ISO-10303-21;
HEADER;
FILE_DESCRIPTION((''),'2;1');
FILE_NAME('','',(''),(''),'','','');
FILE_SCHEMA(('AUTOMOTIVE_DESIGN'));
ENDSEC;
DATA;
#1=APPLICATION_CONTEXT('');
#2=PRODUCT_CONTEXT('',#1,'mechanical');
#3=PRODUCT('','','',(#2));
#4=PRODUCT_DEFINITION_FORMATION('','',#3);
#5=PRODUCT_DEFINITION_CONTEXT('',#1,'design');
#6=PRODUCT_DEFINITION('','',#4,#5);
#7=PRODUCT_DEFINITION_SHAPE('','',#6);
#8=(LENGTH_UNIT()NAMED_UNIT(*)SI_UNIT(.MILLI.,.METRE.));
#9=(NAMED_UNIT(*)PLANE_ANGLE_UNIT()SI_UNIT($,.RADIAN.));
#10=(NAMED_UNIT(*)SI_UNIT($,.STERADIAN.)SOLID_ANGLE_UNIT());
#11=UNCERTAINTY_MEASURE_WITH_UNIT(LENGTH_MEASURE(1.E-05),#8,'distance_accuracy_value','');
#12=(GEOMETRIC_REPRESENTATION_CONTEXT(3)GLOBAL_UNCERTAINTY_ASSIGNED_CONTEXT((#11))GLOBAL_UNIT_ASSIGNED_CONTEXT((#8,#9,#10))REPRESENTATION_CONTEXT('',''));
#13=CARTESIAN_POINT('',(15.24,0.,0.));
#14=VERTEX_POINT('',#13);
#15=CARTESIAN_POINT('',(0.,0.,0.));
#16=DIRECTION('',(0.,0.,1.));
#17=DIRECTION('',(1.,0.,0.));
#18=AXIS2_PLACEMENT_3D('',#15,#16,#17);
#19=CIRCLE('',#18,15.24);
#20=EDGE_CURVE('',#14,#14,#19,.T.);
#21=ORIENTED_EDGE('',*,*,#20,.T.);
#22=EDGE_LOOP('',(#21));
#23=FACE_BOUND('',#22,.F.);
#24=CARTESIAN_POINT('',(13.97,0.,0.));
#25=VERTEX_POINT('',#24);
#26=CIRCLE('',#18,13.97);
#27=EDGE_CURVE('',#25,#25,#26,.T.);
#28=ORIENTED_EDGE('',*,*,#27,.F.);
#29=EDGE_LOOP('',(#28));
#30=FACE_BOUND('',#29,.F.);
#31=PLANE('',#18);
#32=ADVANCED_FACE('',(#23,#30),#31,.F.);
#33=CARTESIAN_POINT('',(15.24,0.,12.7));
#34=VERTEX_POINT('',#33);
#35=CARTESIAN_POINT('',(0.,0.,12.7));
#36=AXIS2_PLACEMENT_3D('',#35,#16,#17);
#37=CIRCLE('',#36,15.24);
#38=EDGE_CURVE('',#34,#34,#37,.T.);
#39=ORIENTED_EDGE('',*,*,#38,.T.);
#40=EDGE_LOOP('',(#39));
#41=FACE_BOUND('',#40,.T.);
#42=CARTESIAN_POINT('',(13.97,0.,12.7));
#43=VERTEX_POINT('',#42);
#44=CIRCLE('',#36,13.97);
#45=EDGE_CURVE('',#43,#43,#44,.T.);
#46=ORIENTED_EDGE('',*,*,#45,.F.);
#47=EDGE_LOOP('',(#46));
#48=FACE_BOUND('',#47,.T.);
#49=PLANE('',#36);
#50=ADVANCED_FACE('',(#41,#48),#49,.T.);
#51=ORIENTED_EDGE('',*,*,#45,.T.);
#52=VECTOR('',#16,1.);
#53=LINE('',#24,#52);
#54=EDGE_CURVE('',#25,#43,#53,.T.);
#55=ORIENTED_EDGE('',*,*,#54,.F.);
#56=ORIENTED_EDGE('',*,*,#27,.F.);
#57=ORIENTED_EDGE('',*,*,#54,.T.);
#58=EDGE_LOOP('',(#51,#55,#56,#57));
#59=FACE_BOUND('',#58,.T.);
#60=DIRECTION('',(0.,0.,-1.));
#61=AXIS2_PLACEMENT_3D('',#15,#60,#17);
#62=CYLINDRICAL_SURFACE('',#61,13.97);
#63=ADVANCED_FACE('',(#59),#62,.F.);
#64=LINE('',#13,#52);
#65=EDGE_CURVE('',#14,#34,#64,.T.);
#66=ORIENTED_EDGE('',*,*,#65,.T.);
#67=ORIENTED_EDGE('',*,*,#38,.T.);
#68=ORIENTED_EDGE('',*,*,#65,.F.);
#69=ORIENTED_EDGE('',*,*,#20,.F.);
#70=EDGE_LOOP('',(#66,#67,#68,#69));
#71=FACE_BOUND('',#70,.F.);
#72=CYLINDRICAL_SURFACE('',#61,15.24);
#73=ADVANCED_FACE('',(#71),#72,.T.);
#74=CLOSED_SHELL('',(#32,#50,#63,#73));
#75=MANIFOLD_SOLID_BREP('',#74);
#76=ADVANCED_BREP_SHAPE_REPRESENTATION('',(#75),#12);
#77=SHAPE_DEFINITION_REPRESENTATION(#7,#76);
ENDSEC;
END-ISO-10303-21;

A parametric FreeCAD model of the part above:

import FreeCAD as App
import Part
import Sketcher
Q = App.Units.Quantity

doc = App.newDocument("Part")
params = doc.addObject("Spreadsheet::Sheet", "Params")
for row, (alias, value) in enumerate([
    ("sketch1_diameter", "1.2 in"),
    ("pad1_length", "0.5 in"),
    ("sketch2_diameter", "1.1 in"),
    ("pocket1_length", "0.5 in"),
    ("sketch3_diameter", "1.1 in"),
    ("pocket2_length", "0.5 in"),
], start=1):
    params.set(f"A{row}", alias)
    params.set(f"B{row}", "=" + value)
    params.setAlias(f"B{row}", alias)

body = doc.addObject("PartDesign::Body", "Body")

# Sketch on XY plane
sketch1 = body.newObject("Sketcher::SketchObject", "Sketch")
sketch1.AttachmentSupport = (doc.getObject("XY_Plane"), [""])
sketch1.MapMode = "FlatFace"
sketch1.addGeometry(Part.Circle(App.Vector(0, 0, 0), App.Vector(0, 0, 1), 15), False)
sketch1.addConstraint([
    Sketcher.Constraint("Coincident", 0, 3, -1, 1),
    Sketcher.Constraint("Diameter", 0, Q("1.2 in")),
])
sketch1.setExpression("Constraints[1]", "Params.sketch1_diameter")
pad1 = body.newObject("PartDesign::Pad", "Pad")
pad1.Profile = sketch1
pad1.setExpression("Length", "Params.pad1_length")

# Sketch on XY plane
sketch2 = body.newObject("Sketcher::SketchObject", "Sketch001")
sketch2.AttachmentSupport = (doc.getObject("XY_Plane"), [""])
sketch2.MapMode = "FlatFace"
sketch2.addGeometry(Part.Circle(App.Vector(-11, 19, 0), App.Vector(0, 0, 1), 14), False)
sketch2.addConstraint([
    Sketcher.Constraint("Diameter", 0, Q("1.1 in")),
    Sketcher.Constraint("DistanceX", 0, 3, -1, 1, 10.602972),
    Sketcher.Constraint("DistanceY", -1, 1, 0, 3, 18.632865),
])
sketch2.setExpression("Constraints[0]", "Params.sketch2_diameter")
pocket1 = body.newObject("PartDesign::Pocket", "Pocket")
pocket1.Profile = sketch2
pocket1.setExpression("Length", "Params.pocket1_length")

# Sketch on XY plane
sketch3 = body.newObject("Sketcher::SketchObject", "Sketch002")
sketch3.AttachmentSupport = (doc.getObject("XY_Plane"), [""])
sketch3.MapMode = "FlatFace"
sketch3.addGeometry(Part.Circle(App.Vector(0, 0, 0), App.Vector(0, 0, 1), 14), False)
sketch3.addConstraint([
    Sketcher.Constraint("Coincident", 0, 3, -1, 1),
    Sketcher.Constraint("Diameter", 0, Q("1.1 in")),
])
sketch3.setExpression("Constraints[1]", "Params.sketch3_diameter")
pocket2 = body.newObject("PartDesign::Pocket", "Pocket001")
pocket2.Profile = sketch3
pocket2.setExpression("Length", "Params.pocket2_length")
pocket2.Reversed = True

doc.recompute()
